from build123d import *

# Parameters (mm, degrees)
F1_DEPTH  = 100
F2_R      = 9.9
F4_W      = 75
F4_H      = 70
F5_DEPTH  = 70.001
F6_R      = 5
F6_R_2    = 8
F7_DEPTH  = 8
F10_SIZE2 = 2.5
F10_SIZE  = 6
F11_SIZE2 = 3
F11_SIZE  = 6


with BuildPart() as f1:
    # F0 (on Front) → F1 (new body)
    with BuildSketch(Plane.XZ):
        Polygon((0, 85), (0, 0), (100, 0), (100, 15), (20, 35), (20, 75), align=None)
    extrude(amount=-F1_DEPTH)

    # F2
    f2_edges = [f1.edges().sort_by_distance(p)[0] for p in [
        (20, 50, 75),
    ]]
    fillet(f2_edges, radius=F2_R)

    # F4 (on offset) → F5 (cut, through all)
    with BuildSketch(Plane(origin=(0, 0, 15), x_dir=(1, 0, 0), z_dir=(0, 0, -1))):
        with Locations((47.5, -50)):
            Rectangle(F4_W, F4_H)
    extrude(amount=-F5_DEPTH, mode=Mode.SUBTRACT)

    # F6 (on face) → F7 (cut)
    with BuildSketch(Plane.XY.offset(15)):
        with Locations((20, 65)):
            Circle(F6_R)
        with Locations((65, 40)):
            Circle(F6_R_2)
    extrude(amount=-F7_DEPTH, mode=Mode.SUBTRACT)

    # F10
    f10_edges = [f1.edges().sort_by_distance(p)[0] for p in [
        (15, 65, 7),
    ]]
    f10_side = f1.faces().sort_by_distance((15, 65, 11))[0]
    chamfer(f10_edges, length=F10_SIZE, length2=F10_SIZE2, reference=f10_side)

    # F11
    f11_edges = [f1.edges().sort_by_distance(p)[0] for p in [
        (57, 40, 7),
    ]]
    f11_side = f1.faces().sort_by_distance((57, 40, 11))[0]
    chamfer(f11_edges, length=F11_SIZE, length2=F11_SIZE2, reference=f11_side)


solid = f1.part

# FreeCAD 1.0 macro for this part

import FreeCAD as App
import Part
import Sketcher

V = App.Vector
Q = App.Units.Quantity


def edges_at(feature, points):
    """Names of the edges that pass closest to the given points."""
    edges = feature.Shape.Edges
    near = lambda p: min(range(len(edges)), key=lambda i: edges[i].distToShape(Part.Vertex(*p))[0])
    return sorted({f"Edge{near(p) + 1}" for p in points})


def add_polygon(sketch, points):
    """Adds a closed chain of lines whose ends are joined by coincident constraints."""
    first, n = sketch.GeometryCount, len(points)
    for a, b in zip(points, points[1:] + points[:1]):
        sketch.addGeometry(Part.LineSegment(App.Vector(*a, 0), App.Vector(*b, 0)), False)
    for i in range(n):
        sketch.addConstraint(Sketcher.Constraint("Coincident", first + i, 2, first + (i + 1) % n, 1))

doc = App.newDocument("Part")
body = doc.addObject("PartDesign::Body", "Body")

# Sketch on XZ plane
sketch1 = body.newObject("Sketcher::SketchObject", "Sketch")
sketch1.AttachmentSupport = (doc.getObject("XZ_Plane"), [""])
sketch1.MapMode = "FlatFace"
add_polygon(sketch1, [(0, 85), (0, 0), (100, 0), (100, 15), (20, 35), (20, 75)])  # lines 0-5
sketch1.addConstraint([
    Sketcher.Constraint("Vertical", 0),
    Sketcher.Constraint("Horizontal", 1),
    Sketcher.Constraint("Vertical", 2),
    Sketcher.Constraint("Vertical", 4),
    Sketcher.Constraint("Coincident", 0, 2, -1, 1),
    Sketcher.Constraint("DistanceX", 1, 1, 1, 2, Q("100 mm")),
    Sketcher.Constraint("DistanceY", 0, 2, 0, 1, Q("85 mm")),
    Sketcher.Constraint("DistanceY", 2, 1, 2, 2, Q("15 mm")),
    Sketcher.Constraint("DistanceY", 4, 1, 4, 2, Q("40 mm")),
    Sketcher.Constraint("DistanceX", -1, 1, 3, 2, Q("20 mm")),
    Sketcher.Constraint("DistanceY", -1, 1, 3, 2, Q("35 mm")),
])
pad1 = body.newObject("PartDesign::Pad", "Pad")
pad1.Profile = sketch1
pad1.Length = 100
pad1.Reversed = True
doc.recompute()

fillet = body.newObject("PartDesign::Fillet", "Fillet")
fillet.Base = (pad1, edges_at(pad1, [(20, 50, 75)]))
fillet.Radius = 9.9

# Sketch on XY plane
sketch2 = body.newObject("Sketcher::SketchObject", "Sketch001")
sketch2.AttachmentSupport = (doc.getObject("XY_Plane"), [""])
sketch2.MapMode = "FlatFace"
sketch2.AttachmentOffset = App.Placement(V(0, 0, 15), App.Rotation())
add_polygon(sketch2, [(10, 15), (10, 85), (85, 85), (85, 15)])  # lines 0-3
sketch2.addConstraint([
    Sketcher.Constraint("Vertical", 0),
    Sketcher.Constraint("Horizontal", 1),
    Sketcher.Constraint("Vertical", 2),
    Sketcher.Constraint("Horizontal", 3),
    Sketcher.Constraint("DistanceX", 1, 1, 1, 2, Q("75 mm")),
    Sketcher.Constraint("DistanceY", 0, 1, 0, 2, Q("70 mm")),
    Sketcher.Constraint("DistanceX", -1, 1, 0, 2, Q("10 mm")),
    Sketcher.Constraint("DistanceY", -1, 1, 0, 2, Q("85 mm")),
])
pocket1 = body.newObject("PartDesign::Pocket", "Pocket")
pocket1.Profile = sketch2
pocket1.Type = "ThroughAll"
pocket1.Reversed = True

# Sketch on XY plane
sketch3 = body.newObject("Sketcher::SketchObject", "Sketch002")
sketch3.AttachmentSupport = (doc.getObject("XY_Plane"), [""])
sketch3.MapMode = "FlatFace"
sketch3.AttachmentOffset = App.Placement(V(0, 0, 15), App.Rotation())
sketch3.addGeometry([
    Part.Circle(V(20, 65, 0), V(0, 0, 1), 5),
    Part.Circle(V(65, 40, 0), V(0, 0, 1), 8),
], False)
sketch3.addConstraint([
    Sketcher.Constraint("Diameter", 0, Q("10 mm")),
    Sketcher.Constraint("Diameter", 1, Q("16 mm")),
    Sketcher.Constraint("DistanceX", -1, 1, 0, 3, Q("20 mm")),
    Sketcher.Constraint("DistanceY", -1, 1, 0, 3, Q("65 mm")),
    Sketcher.Constraint("DistanceX", -1, 1, 1, 3, Q("65 mm")),
    Sketcher.Constraint("DistanceY", -1, 1, 1, 3, Q("40 mm")),
])
pocket2 = body.newObject("PartDesign::Pocket", "Pocket001")
pocket2.Profile = sketch3
pocket2.Length = 8
doc.recompute()

chamfer = body.newObject("PartDesign::Chamfer", "Chamfer")
chamfer.Base = (pocket2, edges_at(pocket2, [(15, 65, 7)]))
chamfer.ChamferType = "Two distances"
chamfer.Size = 6
chamfer.Size2 = 2.5
doc.recompute()

chamfer2 = body.newObject("PartDesign::Chamfer", "Chamfer001")
chamfer2.Base = (chamfer, edges_at(chamfer, [(57, 40, 7)]))
chamfer2.ChamferType = "Two distances"
chamfer2.Size = 6
chamfer2.Size2 = 3

doc.recompute()
